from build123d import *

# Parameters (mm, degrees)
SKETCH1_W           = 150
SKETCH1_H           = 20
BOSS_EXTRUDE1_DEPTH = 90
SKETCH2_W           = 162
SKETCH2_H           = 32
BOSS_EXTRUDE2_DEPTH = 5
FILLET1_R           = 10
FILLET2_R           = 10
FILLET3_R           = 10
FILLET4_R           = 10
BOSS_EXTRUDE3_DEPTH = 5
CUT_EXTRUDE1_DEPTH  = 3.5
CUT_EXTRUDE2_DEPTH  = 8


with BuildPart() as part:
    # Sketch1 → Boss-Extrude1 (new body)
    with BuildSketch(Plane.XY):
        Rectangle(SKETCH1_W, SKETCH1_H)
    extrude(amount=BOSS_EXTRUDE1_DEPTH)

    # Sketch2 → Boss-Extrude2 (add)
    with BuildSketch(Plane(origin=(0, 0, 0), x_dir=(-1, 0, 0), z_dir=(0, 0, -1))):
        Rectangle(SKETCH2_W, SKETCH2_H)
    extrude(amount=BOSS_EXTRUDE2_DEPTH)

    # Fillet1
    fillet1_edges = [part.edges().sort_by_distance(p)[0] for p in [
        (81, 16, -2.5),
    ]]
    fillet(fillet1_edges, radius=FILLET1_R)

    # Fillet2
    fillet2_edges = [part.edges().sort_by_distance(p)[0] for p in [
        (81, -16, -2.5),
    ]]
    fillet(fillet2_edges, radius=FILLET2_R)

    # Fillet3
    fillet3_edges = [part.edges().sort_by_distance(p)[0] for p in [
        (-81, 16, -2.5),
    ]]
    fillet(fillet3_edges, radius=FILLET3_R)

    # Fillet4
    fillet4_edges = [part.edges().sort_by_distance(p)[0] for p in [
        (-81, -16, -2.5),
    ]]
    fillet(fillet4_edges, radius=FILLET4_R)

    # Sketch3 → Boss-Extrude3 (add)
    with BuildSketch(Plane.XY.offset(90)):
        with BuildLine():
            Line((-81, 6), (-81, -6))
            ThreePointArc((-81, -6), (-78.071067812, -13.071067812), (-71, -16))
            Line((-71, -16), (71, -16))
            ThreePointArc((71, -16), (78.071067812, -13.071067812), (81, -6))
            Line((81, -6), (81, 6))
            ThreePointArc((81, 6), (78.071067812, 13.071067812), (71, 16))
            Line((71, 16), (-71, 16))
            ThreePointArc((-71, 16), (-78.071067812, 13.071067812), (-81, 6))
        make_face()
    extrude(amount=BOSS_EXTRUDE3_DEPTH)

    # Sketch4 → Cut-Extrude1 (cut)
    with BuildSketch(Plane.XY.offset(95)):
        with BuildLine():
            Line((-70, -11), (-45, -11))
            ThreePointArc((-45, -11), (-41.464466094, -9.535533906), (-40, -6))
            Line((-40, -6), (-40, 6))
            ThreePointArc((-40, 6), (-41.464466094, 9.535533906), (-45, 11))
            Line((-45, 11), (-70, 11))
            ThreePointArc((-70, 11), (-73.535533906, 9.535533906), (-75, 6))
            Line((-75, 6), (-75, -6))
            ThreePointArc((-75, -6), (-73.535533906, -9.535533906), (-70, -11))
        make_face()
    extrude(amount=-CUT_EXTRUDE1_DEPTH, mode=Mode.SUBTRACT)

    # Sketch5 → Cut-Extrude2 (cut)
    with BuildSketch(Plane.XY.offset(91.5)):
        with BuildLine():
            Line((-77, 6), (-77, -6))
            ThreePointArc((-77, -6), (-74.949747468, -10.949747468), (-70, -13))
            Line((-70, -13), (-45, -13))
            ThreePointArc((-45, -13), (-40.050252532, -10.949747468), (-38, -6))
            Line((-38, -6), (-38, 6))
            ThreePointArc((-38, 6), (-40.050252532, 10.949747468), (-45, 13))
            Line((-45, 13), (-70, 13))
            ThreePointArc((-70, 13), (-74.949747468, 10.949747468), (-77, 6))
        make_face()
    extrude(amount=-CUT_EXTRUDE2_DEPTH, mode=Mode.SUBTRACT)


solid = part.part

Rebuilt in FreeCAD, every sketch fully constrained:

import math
import FreeCAD as App
import Part
import Sketcher

V = App.Vector
Q = App.Units.Quantity


def edges_at(feature, points):
    """Names of the edges that pass closest to the given points."""
    edges = feature.Shape.Edges
    near = lambda p: min(range(len(edges)), key=lambda i: edges[i].distToShape(Part.Vertex(*p))[0])
    return sorted({f"Edge{near(p) + 1}" for p in points})


def add_polygon(sketch, points):
    """Adds a closed chain of lines whose ends are joined by coincident constraints."""
    first, n = sketch.GeometryCount, len(points)
    for a, b in zip(points, points[1:] + points[:1]):
        sketch.addGeometry(Part.LineSegment(App.Vector(*a, 0), App.Vector(*b, 0)), False)
    for i in range(n):
        sketch.addConstraint(Sketcher.Constraint("Coincident", first + i, 2, first + (i + 1) % n, 1))

doc = App.newDocument("Part")
body = doc.addObject("PartDesign::Body", "Body")

sketch1 = body.newObject("Sketcher::SketchObject", "Sketch")
sketch1.AttachmentSupport = (doc.getObject("XY_Plane"), [""])
sketch1.MapMode = "FlatFace"
add_polygon(sketch1, [(-75, 10), (-75, -10), (75, -10), (75, 10)])
sketch1.addConstraint([
    Sketcher.Constraint("Vertical", 0),
    Sketcher.Constraint("Horizontal", 1),
    Sketcher.Constraint("Vertical", 2),
    Sketcher.Constraint("Horizontal", 3),
    Sketcher.Constraint("Symmetric", 0, 2, 2, 2, -1, 1),
    Sketcher.Constraint("DistanceX", 1, 1, 1, 2, Q("150 mm")),
    Sketcher.Constraint("DistanceY", 0, 2, 0, 1, Q("20 mm")),
])
pad1 = body.newObject("PartDesign::Pad", "Pad")
pad1.Profile = sketch1
pad1.Length = 90

sketch2 = body.newObject("Sketcher::SketchObject", "Sketch001")
sketch2.AttachmentSupport = (doc.getObject("XY_Plane"), [""])
sketch2.MapMode = "FlatFace"
add_polygon(sketch2, [(81, 16), (81, -16), (-81, -16), (-81, 16)])
sketch2.addConstraint([
    Sketcher.Constraint("Vertical", 0),
    Sketcher.Constraint("Horizontal", 1),
    Sketcher.Constraint("Vertical", 2),
    Sketcher.Constraint("Horizontal", 3),
    Sketcher.Constraint("Symmetric", 0, 2, 2, 2, -1, 1),
    Sketcher.Constraint("DistanceX", 1, 2, 1, 1, Q("162 mm")),
    Sketcher.Constraint("DistanceY", 0, 2, 0, 1, Q("32 mm")),
])
pad2 = body.newObject("PartDesign::Pad", "Pad001")
pad2.Profile = sketch2
pad2.Length = 5
pad2.Reversed = True
doc.recompute()

fillet = body.newObject("PartDesign::Fillet", "Fillet")
fillet.Base = (pad2, edges_at(pad2, [(81, 16, -2.5)]))
fillet.Radius = 10
doc.recompute()

fillet2 = body.newObject("PartDesign::Fillet", "Fillet001")
fillet2.Base = (fillet, edges_at(fillet, [(81, -16, -2.5)]))
fillet2.Radius = 10
doc.recompute()

fillet3 = body.newObject("PartDesign::Fillet", "Fillet002")
fillet3.Base = (fillet2, edges_at(fillet2, [(-81, 16, -2.5)]))
fillet3.Radius = 10
doc.recompute()

fillet4 = body.newObject("PartDesign::Fillet", "Fillet003")
fillet4.Base = (fillet3, edges_at(fillet3, [(-81, -16, -2.5)]))
fillet4.Radius = 10

sketch3 = body.newObject("Sketcher::SketchObject", "Sketch002")
sketch3.AttachmentSupport = (doc.getObject("XY_Plane"), [""])
sketch3.MapMode = "FlatFace"
sketch3.AttachmentOffset = App.Placement(V(0, 0, 90), App.Rotation())
sketch3.addGeometry([
    Part.LineSegment(V(-81, 6, 0), V(-81, -6, 0)),
    Part.ArcOfCircle(Part.Circle(V(-71, -6, 0), V(0, 0, 1), 10), math.radians(180), math.radians(270)),
    Part.LineSegment(V(-71, -16, 0), V(71, -16, 0)),
    Part.ArcOfCircle(Part.Circle(V(71, -6, 0), V(0, 0, 1), 10), math.radians(-90), math.radians(0)),
    Part.LineSegment(V(81, -6, 0), V(81, 6, 0)),
    Part.ArcOfCircle(Part.Circle(V(71, 6, 0), V(0, 0, 1), 10), math.radians(0), math.radians(90)),
    Part.LineSegment(V(71, 16, 0), V(-71, 16, 0)),
    Part.ArcOfCircle(Part.Circle(V(-71, 6, 0), V(0, 0, 1), 10), math.radians(90), math.radians(180)),
], False)
sketch3.addConstraint([
    Sketcher.Constraint("Tangent", 0, 2, 1, 1),
    Sketcher.Constraint("Tangent", 1, 2, 2, 1),
    Sketcher.Constraint("Tangent", 2, 2, 3, 1),
    Sketcher.Constraint("Tangent", 3, 2, 4, 1),
    Sketcher.Constraint("Tangent", 4, 2, 5, 1),
    Sketcher.Constraint("Tangent", 5, 2, 6, 1),
    Sketcher.Constraint("Tangent", 6, 2, 7, 1),
    Sketcher.Constraint("Tangent", 7, 2, 0, 1),
    Sketcher.Constraint("Vertical", 0),
    Sketcher.Constraint("Horizontal", 2),
    Sketcher.Constraint("Vertical", 4),
    Sketcher.Constraint("Horizontal", 6),
    Sketcher.Constraint("Equal", 1, 3),
    Sketcher.Constraint("Equal", 3, 5),
    Sketcher.Constraint("Equal", 5, 7),
    Sketcher.Constraint("Symmetric", 1, 3, 5, 3, -1, 1),
    Sketcher.Constraint("Radius", 1, Q("10 mm")),
    Sketcher.Constraint("DistanceX", 2, 1, 2, 2, Q("142 mm")),
    Sketcher.Constraint("DistanceY", 0, 2, 0, 1, Q("12 mm")),
])
pad3 = body.newObject("PartDesign::Pad", "Pad002")
pad3.Profile = sketch3
pad3.Length = 5

sketch4 = body.newObject("Sketcher::SketchObject", "Sketch003")
sketch4.AttachmentSupport = (doc.getObject("XY_Plane"), [""])
sketch4.MapMode = "FlatFace"
sketch4.AttachmentOffset = App.Placement(V(0, 0, 95), App.Rotation())
sketch4.addGeometry([
    Part.LineSegment(V(-70, -11, 0), V(-45, -11, 0)),
    Part.ArcOfCircle(Part.Circle(V(-45, -6, 0), V(0, 0, 1), 5), math.radians(-90), math.radians(0)),
    Part.LineSegment(V(-40, -6, 0), V(-40, 6, 0)),
    Part.ArcOfCircle(Part.Circle(V(-45, 6, 0), V(0, 0, 1), 5), math.radians(0), math.radians(90)),
    Part.LineSegment(V(-45, 11, 0), V(-70, 11, 0)),
    Part.ArcOfCircle(Part.Circle(V(-70, 6, 0), V(0, 0, 1), 5), math.radians(90), math.radians(180)),
    Part.LineSegment(V(-75, 6, 0), V(-75, -6, 0)),
    Part.ArcOfCircle(Part.Circle(V(-70, -6, 0), V(0, 0, 1), 5), math.radians(180), math.radians(270)),
], False)
sketch4.addConstraint([
    Sketcher.Constraint("Tangent", 0, 2, 1, 1),
    Sketcher.Constraint("Tangent", 1, 2, 2, 1),
    Sketcher.Constraint("Tangent", 2, 2, 3, 1),
    Sketcher.Constraint("Tangent", 3, 2, 4, 1),
    Sketcher.Constraint("Tangent", 4, 2, 5, 1),
    Sketcher.Constraint("Tangent", 5, 2, 6, 1),
    Sketcher.Constraint("Tangent", 6, 2, 7, 1),
    Sketcher.Constraint("Tangent", 7, 2, 0, 1),
    Sketcher.Constraint("Horizontal", 0),
    Sketcher.Constraint("Vertical", 2),
    Sketcher.Constraint("Horizontal", 4),
    Sketcher.Constraint("Vertical", 6),
    Sketcher.Constraint("Equal", 1, 3),
    Sketcher.Constraint("Equal", 3, 5),
    Sketcher.Constraint("Equal", 5, 7),
    Sketcher.Constraint("Radius", 1, Q("5 mm")),
    Sketcher.Constraint("DistanceX", 0, 1, 0, 2, Q("25 mm")),
    Sketcher.Constraint("DistanceY", 2, 1, 2, 2, Q("12 mm")),
    Sketcher.Constraint("DistanceX", 1, 3, -1, 1, Q("45 mm")),
    Sketcher.Constraint("DistanceY", 1, 3, -1, 1, Q("6 mm")),
])
pocket1 = body.newObject("PartDesign::Pocket", "Pocket")
pocket1.Profile = sketch4
pocket1.Length = 3.5

sketch5 = body.newObject("Sketcher::SketchObject", "Sketch004")
sketch5.AttachmentSupport = (doc.getObject("XY_Plane"), [""])
sketch5.MapMode = "FlatFace"
sketch5.AttachmentOffset = App.Placement(V(0, 0, 91.5), App.Rotation())
sketch5.addGeometry([
    Part.LineSegment(V(-77, 6, 0), V(-77, -6, 0)),
    Part.ArcOfCircle(Part.Circle(V(-70, -6, 0), V(0, 0, 1), 7), math.radians(-180), math.radians(-90)),
    Part.LineSegment(V(-70, -13, 0), V(-45, -13, 0)),
    Part.ArcOfCircle(Part.Circle(V(-45, -6, 0), V(0, 0, 1), 7), math.radians(-90), math.radians(0)),
    Part.LineSegment(V(-38, -6, 0), V(-38, 6, 0)),
    Part.ArcOfCircle(Part.Circle(V(-45, 6, 0), V(0, 0, 1), 7), math.radians(0), math.radians(90)),
    Part.LineSegment(V(-45, 13, 0), V(-70, 13, 0)),
    Part.ArcOfCircle(Part.Circle(V(-70, 6, 0), V(0, 0, 1), 7), math.radians(90), math.radians(180)),
], False)
sketch5.addConstraint([
    Sketcher.Constraint("Tangent", 0, 2, 1, 1),
    Sketcher.Constraint("Tangent", 1, 2, 2, 1),
    Sketcher.Constraint("Tangent", 2, 2, 3, 1),
    Sketcher.Constraint("Tangent", 3, 2, 4, 1),
    Sketcher.Constraint("Tangent", 4, 2, 5, 1),
    Sketcher.Constraint("Tangent", 5, 2, 6, 1),
    Sketcher.Constraint("Tangent", 6, 2, 7, 1),
    Sketcher.Constraint("Tangent", 7, 2, 0, 1),
    Sketcher.Constraint("Vertical", 0),
    Sketcher.Constraint("Horizontal", 2),
    Sketcher.Constraint("Vertical", 4),
    Sketcher.Constraint("Horizontal", 6),
    Sketcher.Constraint("Equal", 1, 3),
    Sketcher.Constraint("Equal", 3, 5),
    Sketcher.Constraint("Equal", 5, 7),
    Sketcher.Constraint("Radius", 1, Q("7 mm")),
    Sketcher.Constraint("DistanceX", 2, 1, 2, 2, Q("25 mm")),
    Sketcher.Constraint("DistanceY", 0, 2, 0, 1, Q("12 mm")),
    Sketcher.Constraint("DistanceX", 1, 3, -1, 1, Q("70 mm")),
    Sketcher.Constraint("DistanceY", 1, 3, -1, 1, Q("6 mm")),
])
pocket2 = body.newObject("PartDesign::Pocket", "Pocket001")
pocket2.Profile = sketch5
pocket2.Length = 8

doc.recompute()
